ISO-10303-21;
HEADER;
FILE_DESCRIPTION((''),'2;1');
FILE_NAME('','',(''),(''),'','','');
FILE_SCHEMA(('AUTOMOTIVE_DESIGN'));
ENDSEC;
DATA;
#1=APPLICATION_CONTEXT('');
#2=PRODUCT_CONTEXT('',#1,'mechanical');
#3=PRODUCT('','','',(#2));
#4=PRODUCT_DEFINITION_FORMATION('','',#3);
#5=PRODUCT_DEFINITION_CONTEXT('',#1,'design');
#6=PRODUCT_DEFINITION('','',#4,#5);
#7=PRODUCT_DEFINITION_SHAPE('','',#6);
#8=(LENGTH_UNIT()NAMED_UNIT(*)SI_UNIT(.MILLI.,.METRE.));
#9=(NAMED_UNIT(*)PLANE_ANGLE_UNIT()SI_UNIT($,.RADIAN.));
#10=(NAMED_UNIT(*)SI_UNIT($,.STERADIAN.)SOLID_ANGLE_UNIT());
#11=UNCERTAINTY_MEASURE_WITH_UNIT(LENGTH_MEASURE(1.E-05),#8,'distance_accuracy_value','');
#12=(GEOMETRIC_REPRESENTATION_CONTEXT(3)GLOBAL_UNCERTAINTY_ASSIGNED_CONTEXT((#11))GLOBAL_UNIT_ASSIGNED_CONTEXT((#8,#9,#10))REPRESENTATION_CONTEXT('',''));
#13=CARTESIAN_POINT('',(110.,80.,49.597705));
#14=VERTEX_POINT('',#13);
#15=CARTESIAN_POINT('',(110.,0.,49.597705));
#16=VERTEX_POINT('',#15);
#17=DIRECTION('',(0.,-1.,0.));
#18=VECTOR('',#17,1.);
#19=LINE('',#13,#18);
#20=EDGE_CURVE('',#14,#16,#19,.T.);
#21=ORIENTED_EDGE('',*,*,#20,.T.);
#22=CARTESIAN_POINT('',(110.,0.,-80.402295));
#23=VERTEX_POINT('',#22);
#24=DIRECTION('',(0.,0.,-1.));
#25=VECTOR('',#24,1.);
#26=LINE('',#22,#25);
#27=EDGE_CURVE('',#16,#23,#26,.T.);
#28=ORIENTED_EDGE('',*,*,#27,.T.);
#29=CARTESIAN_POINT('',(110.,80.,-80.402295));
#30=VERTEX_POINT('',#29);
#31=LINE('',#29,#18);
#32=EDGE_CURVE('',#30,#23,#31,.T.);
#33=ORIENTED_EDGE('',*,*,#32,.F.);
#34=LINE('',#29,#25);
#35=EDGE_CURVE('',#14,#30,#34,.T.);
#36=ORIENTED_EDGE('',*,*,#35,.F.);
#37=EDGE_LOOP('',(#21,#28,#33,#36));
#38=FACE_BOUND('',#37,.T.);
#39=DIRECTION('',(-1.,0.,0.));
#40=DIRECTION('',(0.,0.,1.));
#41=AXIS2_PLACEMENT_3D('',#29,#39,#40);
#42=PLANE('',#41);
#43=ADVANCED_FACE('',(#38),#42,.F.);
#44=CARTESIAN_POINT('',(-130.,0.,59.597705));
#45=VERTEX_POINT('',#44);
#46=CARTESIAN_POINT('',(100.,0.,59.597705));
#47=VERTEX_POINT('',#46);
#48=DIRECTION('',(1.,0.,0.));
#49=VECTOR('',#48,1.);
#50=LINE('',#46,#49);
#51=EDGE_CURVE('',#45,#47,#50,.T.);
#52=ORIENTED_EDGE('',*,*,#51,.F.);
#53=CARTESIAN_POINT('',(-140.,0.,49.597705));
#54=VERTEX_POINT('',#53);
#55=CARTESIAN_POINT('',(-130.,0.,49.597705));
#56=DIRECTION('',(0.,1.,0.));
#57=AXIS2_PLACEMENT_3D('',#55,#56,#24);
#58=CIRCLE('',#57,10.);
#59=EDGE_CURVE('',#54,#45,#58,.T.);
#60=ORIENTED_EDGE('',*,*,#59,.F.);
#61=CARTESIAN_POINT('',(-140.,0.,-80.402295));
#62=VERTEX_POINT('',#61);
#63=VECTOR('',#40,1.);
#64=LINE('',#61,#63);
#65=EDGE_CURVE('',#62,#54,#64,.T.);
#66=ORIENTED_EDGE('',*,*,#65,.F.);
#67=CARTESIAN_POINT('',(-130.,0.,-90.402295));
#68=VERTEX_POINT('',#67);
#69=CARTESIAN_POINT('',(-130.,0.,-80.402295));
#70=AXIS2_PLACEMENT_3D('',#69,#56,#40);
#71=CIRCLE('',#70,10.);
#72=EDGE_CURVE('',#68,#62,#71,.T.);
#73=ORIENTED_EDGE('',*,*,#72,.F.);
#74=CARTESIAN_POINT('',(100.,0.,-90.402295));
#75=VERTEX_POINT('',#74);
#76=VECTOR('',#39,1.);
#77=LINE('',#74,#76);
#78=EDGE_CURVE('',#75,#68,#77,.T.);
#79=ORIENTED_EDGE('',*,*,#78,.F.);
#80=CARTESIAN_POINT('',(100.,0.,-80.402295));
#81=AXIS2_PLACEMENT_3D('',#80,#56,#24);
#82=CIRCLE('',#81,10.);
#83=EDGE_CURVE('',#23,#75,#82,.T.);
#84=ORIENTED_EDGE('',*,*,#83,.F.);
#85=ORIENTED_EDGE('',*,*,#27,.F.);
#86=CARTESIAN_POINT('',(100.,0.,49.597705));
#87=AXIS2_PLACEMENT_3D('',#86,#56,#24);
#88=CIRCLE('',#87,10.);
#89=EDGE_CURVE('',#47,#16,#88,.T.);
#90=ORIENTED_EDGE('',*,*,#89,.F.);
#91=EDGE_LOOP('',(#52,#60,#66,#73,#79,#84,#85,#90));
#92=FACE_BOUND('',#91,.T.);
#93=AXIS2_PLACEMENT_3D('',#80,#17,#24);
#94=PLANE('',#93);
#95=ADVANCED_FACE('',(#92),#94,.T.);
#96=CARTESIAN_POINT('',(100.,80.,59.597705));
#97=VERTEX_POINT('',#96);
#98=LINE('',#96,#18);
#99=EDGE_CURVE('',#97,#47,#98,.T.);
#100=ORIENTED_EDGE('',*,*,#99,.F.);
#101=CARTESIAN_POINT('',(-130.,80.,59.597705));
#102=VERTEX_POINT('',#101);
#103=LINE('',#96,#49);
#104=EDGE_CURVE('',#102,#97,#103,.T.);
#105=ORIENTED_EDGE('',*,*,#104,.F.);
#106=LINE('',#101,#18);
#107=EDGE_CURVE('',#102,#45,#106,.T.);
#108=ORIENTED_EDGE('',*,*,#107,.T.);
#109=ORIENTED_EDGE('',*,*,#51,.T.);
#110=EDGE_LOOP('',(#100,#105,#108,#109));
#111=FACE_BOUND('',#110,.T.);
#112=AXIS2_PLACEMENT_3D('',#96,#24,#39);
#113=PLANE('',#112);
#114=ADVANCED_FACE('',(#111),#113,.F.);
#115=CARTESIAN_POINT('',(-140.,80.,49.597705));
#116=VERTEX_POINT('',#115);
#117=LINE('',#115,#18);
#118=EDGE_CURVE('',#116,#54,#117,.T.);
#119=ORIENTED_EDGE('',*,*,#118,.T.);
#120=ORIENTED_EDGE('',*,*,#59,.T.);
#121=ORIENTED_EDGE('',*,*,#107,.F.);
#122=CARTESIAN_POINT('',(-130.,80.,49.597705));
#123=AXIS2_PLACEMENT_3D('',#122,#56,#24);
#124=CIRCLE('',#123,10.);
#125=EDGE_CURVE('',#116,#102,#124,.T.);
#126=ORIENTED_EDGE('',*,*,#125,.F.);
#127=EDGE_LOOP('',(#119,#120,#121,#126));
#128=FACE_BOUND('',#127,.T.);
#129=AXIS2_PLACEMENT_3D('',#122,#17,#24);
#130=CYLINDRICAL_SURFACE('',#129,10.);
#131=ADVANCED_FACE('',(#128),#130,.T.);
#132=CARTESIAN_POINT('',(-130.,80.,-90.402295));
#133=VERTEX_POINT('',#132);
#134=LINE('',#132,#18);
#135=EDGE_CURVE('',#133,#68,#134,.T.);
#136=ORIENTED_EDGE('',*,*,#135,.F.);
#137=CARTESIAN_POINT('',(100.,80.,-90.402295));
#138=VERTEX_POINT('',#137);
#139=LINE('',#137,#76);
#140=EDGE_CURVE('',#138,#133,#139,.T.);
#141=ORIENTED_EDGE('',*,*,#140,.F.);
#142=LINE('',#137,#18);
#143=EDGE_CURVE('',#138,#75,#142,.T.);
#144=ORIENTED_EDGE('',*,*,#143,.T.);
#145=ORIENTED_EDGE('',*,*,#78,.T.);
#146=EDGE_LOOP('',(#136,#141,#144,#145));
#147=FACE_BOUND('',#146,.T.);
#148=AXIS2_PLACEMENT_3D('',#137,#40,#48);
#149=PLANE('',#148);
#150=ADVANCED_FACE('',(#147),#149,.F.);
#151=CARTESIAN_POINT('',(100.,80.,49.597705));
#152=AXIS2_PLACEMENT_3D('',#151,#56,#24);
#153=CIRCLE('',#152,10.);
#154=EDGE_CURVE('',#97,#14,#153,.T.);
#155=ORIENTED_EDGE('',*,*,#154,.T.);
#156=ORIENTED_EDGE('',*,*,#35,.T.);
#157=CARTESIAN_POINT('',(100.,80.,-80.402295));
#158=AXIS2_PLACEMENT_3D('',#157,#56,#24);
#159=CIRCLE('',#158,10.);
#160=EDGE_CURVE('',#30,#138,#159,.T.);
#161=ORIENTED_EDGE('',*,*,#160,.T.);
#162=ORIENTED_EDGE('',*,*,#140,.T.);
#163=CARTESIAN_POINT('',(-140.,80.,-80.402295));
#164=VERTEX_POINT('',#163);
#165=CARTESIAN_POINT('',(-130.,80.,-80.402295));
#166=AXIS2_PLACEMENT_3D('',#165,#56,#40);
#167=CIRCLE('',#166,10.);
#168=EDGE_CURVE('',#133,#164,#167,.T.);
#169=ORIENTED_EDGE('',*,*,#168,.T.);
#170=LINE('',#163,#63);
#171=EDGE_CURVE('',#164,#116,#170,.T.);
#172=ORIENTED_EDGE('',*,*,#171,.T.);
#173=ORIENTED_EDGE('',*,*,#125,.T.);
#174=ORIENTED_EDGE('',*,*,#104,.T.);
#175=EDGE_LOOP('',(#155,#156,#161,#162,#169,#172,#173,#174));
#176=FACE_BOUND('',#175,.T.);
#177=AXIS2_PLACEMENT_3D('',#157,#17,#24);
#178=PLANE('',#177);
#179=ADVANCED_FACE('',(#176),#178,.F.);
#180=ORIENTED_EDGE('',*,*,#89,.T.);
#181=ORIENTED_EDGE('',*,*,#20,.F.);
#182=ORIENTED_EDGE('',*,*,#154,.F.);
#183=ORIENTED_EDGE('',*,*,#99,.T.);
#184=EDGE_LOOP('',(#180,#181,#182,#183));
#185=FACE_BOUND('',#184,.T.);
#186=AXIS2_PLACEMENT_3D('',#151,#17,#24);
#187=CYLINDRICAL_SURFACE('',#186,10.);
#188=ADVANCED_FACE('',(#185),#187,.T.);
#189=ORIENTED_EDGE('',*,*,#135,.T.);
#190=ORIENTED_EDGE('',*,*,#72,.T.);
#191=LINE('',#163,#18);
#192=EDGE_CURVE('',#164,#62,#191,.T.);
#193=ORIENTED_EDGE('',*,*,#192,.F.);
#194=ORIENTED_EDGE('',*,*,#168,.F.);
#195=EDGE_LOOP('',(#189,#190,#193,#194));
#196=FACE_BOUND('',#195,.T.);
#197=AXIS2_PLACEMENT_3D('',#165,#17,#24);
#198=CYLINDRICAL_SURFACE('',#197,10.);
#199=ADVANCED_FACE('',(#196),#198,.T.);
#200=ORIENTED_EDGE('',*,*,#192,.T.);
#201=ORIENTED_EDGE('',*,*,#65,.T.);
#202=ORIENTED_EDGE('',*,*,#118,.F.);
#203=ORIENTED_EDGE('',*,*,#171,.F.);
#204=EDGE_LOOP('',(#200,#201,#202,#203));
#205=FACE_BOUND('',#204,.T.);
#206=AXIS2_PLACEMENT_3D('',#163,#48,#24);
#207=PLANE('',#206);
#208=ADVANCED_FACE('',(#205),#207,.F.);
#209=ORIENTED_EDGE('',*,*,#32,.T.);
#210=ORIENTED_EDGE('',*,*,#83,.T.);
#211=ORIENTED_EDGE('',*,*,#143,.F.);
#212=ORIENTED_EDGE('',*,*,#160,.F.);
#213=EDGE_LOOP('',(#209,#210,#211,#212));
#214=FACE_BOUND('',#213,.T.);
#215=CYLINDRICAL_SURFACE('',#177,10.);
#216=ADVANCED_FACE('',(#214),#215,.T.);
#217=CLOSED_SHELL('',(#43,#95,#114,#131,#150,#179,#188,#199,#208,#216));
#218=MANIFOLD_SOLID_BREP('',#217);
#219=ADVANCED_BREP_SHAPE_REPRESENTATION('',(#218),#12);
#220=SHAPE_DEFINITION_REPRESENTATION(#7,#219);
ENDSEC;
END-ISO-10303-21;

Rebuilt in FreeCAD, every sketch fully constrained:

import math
import FreeCAD as App
import Part
import Sketcher

V = App.Vector
Q = App.Units.Quantity

doc = App.newDocument("Part")
params = doc.addObject("Spreadsheet::Sheet", "Params")
for row, (alias, value) in enumerate([
    ("sketch1_radius", "10 mm"),
    ("sketch1_width", "230 mm"),
    ("sketch1_height", "130 mm"),
    ("pad1_length", "80 mm"),
], start=1):
    params.set(f"A{row}", alias)
    params.set(f"B{row}", "=" + value)
    params.setAlias(f"B{row}", alias)

body = doc.addObject("PartDesign::Body", "Body")

# Sketch on XZ plane
sketch1 = body.newObject("Sketcher::SketchObject", "Sketch")
sketch1.AttachmentSupport = (doc.getObject("XZ_Plane"), [""])
sketch1.MapMode = "FlatFace"
sketch1.addGeometry([
    Part.LineSegment(V(100, -90, 0), V(-130, -90, 0)),  # 0
    Part.ArcOfCircle(Part.Circle(V(-130, -80, 0), V(0, 0, 1), 10), math.radians(180), math.radians(270)),  # 1
    Part.LineSegment(V(-140, -80, 0), V(-140, 50, 0)),  # 2
    Part.ArcOfCircle(Part.Circle(V(-130, 50, 0), V(0, 0, 1), 10), math.radians(90), math.radians(180)),  # 3
    Part.LineSegment(V(-130, 60, 0), V(100, 60, 0)),  # 4
    Part.ArcOfCircle(Part.Circle(V(100, 50, 0), V(0, 0, 1), 10), math.radians(0), math.radians(90)),  # 5
    Part.LineSegment(V(110, 50, 0), V(110, -80, 0)),  # 6
    Part.ArcOfCircle(Part.Circle(V(100, -80, 0), V(0, 0, 1), 10), math.radians(-90), math.radians(0)),  # 7
], False)
sketch1.addConstraint([
    Sketcher.Constraint("Tangent", 0, 2, 1, 2),
    Sketcher.Constraint("Tangent", 1, 1, 2, 1),
    Sketcher.Constraint("Tangent", 2, 2, 3, 2),
    Sketcher.Constraint("Tangent", 3, 1, 4, 1),
    Sketcher.Constraint("Tangent", 4, 2, 5, 2),
    Sketcher.Constraint("Tangent", 5, 1, 6, 1),
    Sketcher.Constraint("Tangent", 6, 2, 7, 2),
    Sketcher.Constraint("Tangent", 7, 1, 0, 1),
    Sketcher.Constraint("Horizontal", 0),
    Sketcher.Constraint("Vertical", 2),
    Sketcher.Constraint("Horizontal", 4),
    Sketcher.Constraint("Vertical", 6),
    Sketcher.Constraint("Equal", 1, 3),
    Sketcher.Constraint("Equal", 3, 5),
    Sketcher.Constraint("Equal", 5, 7),
    Sketcher.Constraint("Radius", 1, Q("10 mm")),
    Sketcher.Constraint("DistanceX", 0, 2, 0, 1, Q("230 mm")),
    Sketcher.Constraint("DistanceY", 2, 1, 2, 2, Q("130 mm")),
    Sketcher.Constraint("DistanceX", 1, 3, -1, 1, Q("130 mm")),
    Sketcher.Constraint("DistanceY", 1, 3, -1, 1, Q("80.402295 mm")),
])
sketch1.setExpression("Constraints[15]", "Params.sketch1_radius")
sketch1.setExpression("Constraints[16]", "Params.sketch1_width")
sketch1.setExpression("Constraints[17]", "Params.sketch1_height")
pad1 = body.newObject("PartDesign::Pad", "Pad")
pad1.Profile = sketch1
pad1.setExpression("Length", "Params.pad1_length")
pad1.Reversed = True

doc.recompute()
